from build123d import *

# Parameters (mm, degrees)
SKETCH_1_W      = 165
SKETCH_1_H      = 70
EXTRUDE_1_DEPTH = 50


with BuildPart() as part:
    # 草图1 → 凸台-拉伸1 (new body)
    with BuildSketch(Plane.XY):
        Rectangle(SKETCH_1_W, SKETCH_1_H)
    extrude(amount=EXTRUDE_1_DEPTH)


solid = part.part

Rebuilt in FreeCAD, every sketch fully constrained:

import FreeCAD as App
import Part
import Sketcher

V = App.Vector


def add_polygon(sketch, points):
    """Adds a closed chain of lines whose ends are joined by coincident constraints."""
    first, n = sketch.GeometryCount, len(points)
    for a, b in zip(points, points[1:] + points[:1]):
        sketch.addGeometry(Part.LineSegment(App.Vector(*a, 0), App.Vector(*b, 0)), False)
    for i in range(n):
        sketch.addConstraint(Sketcher.Constraint("Coincident", first + i, 2, first + (i + 1) % n, 1))

doc = App.newDocument("Part")
body = doc.addObject("PartDesign::Body", "Body")

# Sketch on XY plane
sketch1 = body.newObject("Sketcher::SketchObject", "Sketch")
sketch1.AttachmentSupport = (doc.getObject("XY_Plane"), [""])
sketch1.MapMode = "FlatFace"
add_polygon(sketch1, [(-82, 35), (-82, -35), (82, -35), (82, 35)])  # lines 0-3
sketch1.addConstraint(Sketcher.Constraint("Vertical", 0))
sketch1.addConstraint(Sketcher.Constraint("Horizontal", 1))
sketch1.addConstraint(Sketcher.Constraint("Vertical", 2))
sketch1.addConstraint(Sketcher.Constraint("Horizontal", 3))
sketch1.addConstraint(Sketcher.Constraint("Symmetric", 0, 2, 2, 2, -1, 1))
sketch1.addConstraint(Sketcher.Constraint("DistanceX", 1, 1, 1, 2, 165.0))
sketch1.addConstraint(Sketcher.Constraint("DistanceY", 0, 2, 0, 1, 70.0))
pad1 = body.newObject("PartDesign::Pad", "Pad")
pad1.Profile = sketch1
pad1.Length = 50

doc.recompute()
